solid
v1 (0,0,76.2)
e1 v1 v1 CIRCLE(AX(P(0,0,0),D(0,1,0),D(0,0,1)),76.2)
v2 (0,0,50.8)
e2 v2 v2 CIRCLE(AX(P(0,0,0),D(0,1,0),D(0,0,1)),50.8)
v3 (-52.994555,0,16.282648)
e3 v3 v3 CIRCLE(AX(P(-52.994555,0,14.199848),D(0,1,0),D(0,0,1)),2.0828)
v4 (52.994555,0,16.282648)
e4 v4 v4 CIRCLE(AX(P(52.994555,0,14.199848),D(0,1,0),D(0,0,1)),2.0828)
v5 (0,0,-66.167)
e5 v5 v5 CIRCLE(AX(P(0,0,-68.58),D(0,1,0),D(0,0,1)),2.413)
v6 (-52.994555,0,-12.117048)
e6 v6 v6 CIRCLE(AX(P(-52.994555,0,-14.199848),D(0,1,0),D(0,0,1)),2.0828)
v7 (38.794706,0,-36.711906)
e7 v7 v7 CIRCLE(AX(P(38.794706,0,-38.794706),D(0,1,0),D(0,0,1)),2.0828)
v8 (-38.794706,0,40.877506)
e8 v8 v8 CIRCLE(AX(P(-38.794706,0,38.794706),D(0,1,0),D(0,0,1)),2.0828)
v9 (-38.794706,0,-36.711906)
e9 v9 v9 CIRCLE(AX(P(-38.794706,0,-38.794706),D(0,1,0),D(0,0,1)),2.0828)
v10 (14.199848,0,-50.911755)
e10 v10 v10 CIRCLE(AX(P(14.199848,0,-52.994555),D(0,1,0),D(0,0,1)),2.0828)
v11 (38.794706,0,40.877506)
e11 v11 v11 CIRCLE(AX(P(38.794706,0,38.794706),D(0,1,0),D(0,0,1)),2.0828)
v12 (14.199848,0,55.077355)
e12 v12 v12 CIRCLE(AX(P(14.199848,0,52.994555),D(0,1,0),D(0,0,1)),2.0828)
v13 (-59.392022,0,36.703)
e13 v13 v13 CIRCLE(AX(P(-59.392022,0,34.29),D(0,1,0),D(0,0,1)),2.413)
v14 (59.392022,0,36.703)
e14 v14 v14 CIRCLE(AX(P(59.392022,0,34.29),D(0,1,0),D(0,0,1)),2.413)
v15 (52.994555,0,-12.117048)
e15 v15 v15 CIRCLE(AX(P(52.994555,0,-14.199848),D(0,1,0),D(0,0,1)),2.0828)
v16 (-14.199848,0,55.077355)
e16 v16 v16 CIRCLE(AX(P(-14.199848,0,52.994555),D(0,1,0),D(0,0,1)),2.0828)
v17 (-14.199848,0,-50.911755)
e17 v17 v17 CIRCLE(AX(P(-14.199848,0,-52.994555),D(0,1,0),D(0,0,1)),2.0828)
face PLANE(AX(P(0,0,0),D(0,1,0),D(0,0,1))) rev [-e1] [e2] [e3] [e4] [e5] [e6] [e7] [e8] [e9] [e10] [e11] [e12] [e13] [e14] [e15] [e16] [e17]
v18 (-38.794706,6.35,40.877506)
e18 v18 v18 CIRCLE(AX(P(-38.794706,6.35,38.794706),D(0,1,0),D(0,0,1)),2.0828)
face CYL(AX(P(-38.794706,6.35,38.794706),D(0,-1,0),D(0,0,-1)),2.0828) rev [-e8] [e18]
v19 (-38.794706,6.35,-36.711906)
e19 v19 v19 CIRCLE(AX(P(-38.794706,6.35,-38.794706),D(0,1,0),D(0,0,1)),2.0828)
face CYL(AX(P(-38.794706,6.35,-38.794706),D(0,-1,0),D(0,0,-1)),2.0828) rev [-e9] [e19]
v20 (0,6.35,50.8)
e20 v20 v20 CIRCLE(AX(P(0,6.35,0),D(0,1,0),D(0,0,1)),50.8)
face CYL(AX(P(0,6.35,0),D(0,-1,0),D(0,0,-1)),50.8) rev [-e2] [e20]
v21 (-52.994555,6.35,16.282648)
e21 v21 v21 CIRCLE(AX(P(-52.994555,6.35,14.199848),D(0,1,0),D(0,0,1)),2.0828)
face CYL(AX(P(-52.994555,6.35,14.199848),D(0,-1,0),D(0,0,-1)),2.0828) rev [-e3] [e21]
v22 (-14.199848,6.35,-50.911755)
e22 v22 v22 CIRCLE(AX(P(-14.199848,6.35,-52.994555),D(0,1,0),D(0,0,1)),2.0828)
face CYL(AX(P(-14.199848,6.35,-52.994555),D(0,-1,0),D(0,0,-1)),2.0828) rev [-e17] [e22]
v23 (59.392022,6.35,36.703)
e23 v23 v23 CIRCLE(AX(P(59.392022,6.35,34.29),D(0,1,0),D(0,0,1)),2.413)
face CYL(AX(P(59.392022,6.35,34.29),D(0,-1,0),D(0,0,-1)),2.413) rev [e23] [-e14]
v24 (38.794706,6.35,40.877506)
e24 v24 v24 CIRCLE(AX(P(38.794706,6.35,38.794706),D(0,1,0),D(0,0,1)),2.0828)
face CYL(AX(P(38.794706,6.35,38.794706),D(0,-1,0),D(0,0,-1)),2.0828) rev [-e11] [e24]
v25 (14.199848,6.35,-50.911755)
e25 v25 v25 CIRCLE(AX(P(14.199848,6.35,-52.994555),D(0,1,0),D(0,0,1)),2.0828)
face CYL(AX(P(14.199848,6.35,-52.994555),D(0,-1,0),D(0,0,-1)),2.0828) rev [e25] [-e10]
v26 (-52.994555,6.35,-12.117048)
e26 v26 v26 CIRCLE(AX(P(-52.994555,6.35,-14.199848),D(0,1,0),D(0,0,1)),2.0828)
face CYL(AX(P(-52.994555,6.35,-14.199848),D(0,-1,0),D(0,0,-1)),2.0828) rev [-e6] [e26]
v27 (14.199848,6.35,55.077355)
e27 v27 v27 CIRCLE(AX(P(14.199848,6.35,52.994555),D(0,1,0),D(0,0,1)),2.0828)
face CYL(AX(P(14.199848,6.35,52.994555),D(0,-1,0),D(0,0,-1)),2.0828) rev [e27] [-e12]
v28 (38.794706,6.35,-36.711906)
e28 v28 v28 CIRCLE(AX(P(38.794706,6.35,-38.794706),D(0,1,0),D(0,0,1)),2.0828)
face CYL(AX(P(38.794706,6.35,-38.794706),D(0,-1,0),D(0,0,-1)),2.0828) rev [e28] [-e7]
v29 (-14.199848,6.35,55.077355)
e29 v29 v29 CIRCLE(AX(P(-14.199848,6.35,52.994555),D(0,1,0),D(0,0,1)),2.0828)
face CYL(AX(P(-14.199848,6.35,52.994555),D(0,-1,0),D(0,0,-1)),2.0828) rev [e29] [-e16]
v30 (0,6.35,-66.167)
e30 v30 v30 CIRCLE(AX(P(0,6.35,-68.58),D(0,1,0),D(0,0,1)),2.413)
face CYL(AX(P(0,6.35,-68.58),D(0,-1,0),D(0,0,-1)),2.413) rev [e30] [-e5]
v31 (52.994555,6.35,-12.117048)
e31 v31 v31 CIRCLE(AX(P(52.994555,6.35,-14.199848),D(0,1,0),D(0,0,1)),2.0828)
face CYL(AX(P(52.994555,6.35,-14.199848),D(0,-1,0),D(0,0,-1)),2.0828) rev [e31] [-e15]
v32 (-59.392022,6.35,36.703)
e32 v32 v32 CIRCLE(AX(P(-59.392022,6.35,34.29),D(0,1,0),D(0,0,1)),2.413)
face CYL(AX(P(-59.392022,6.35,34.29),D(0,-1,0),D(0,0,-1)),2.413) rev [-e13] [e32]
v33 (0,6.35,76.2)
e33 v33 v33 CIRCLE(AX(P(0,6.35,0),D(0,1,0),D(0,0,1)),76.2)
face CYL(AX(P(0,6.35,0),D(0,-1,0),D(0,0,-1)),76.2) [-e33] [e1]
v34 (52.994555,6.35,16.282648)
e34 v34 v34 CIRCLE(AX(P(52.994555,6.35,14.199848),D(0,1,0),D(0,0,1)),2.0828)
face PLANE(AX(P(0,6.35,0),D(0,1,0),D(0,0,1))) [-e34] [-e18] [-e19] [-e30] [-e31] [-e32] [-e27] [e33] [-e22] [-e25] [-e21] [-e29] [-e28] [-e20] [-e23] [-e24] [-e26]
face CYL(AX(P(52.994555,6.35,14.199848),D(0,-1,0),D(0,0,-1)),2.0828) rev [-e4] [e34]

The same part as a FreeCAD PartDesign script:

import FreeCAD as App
import Part
import Sketcher
Q = App.Units.Quantity

doc = App.newDocument("Part")
body = doc.addObject("PartDesign::Body", "Body")

sketch1 = doc.addObject("Sketcher::SketchObject", "Sketch")
body.addObject(sketch1)
sketch1.AttachmentSupport = (doc.XZ_Plane, [""])
sketch1.MapMode = "FlatFace"
sketch1.addGeometry(Part.Circle(App.Vector(0, 0, 0), App.Vector(0, 0, 1), 76.2), False)
sketch1.addGeometry(Part.Circle(App.Vector(-53, -14.2, 0), App.Vector(0, 0, 1), 2.1), False)
sketch1.addGeometry(Part.Circle(App.Vector(-38.8, -38.8, 0), App.Vector(0, 0, 1), 2.1), False)
sketch1.addGeometry(Part.Circle(App.Vector(0, -68.6, 0), App.Vector(0, 0, 1), 2.4), False)
sketch1.addGeometry(Part.Circle(App.Vector(-14.2, -53, 0), App.Vector(0, 0, 1), 2.1), False)
sketch1.addGeometry(Part.Circle(App.Vector(-53, 14.2, 0), App.Vector(0, 0, 1), 2.1), False)
sketch1.addGeometry(Part.Circle(App.Vector(-59.4, 34.3, 0), App.Vector(0, 0, 1), 2.4), False)
sketch1.addGeometry(Part.Circle(App.Vector(-38.8, 38.8, 0), App.Vector(0, 0, 1), 2.1), False)
sketch1.addGeometry(Part.Circle(App.Vector(0, 0, 0), App.Vector(0, 0, 1), 50.8), False)
sketch1.addGeometry(Part.Circle(App.Vector(-14.2, 53, 0), App.Vector(0, 0, 1), 2.1), False)
sketch1.addGeometry(Part.Circle(App.Vector(14.2, -53, 0), App.Vector(0, 0, 1), 2.1), False)
sketch1.addGeometry(Part.Circle(App.Vector(38.8, -38.8, 0), App.Vector(0, 0, 1), 2.1), False)
sketch1.addGeometry(Part.Circle(App.Vector(53, -14.2, 0), App.Vector(0, 0, 1), 2.1), False)
sketch1.addGeometry(Part.Circle(App.Vector(14.2, 53, 0), App.Vector(0, 0, 1), 2.1), False)
sketch1.addGeometry(Part.Circle(App.Vector(53, 14.2, 0), App.Vector(0, 0, 1), 2.1), False)
sketch1.addGeometry(Part.Circle(App.Vector(38.8, 38.8, 0), App.Vector(0, 0, 1), 2.1), False)
sketch1.addGeometry(Part.Circle(App.Vector(59.4, 34.3, 0), App.Vector(0, 0, 1), 2.4), False)
sketch1.addConstraint(Sketcher.Constraint("Coincident", 0, 3, -1, 1))
sketch1.addConstraint(Sketcher.Constraint("Coincident", 8, 3, -1, 1))
sketch1.addConstraint(Sketcher.Constraint("Equal", 1, 2))
sketch1.addConstraint(Sketcher.Constraint("Equal", 2, 4))
sketch1.addConstraint(Sketcher.Constraint("Equal", 4, 5))
sketch1.addConstraint(Sketcher.Constraint("Equal", 3, 6))
sketch1.addConstraint(Sketcher.Constraint("Equal", 5, 7))
sketch1.addConstraint(Sketcher.Constraint("Equal", 7, 9))
sketch1.addConstraint(Sketcher.Constraint("Equal", 9, 10))
sketch1.addConstraint(Sketcher.Constraint("Equal", 10, 11))
sketch1.addConstraint(Sketcher.Constraint("Equal", 11, 12))
sketch1.addConstraint(Sketcher.Constraint("Equal", 12, 13))
sketch1.addConstraint(Sketcher.Constraint("Equal", 13, 14))
sketch1.addConstraint(Sketcher.Constraint("Equal", 14, 15))
sketch1.addConstraint(Sketcher.Constraint("Equal", 6, 16))
sketch1.addConstraint(Sketcher.Constraint("Symmetric", 9, 3, 10, 3, -1, 1))
sketch1.addConstraint(Sketcher.Constraint("Symmetric", 7, 3, 11, 3, -1, 1))
sketch1.addConstraint(Sketcher.Constraint("Symmetric", 5, 3, 12, 3, -1, 1))
sketch1.addConstraint(Sketcher.Constraint("Symmetric", 4, 3, 13, 3, -1, 1))
sketch1.addConstraint(Sketcher.Constraint("Symmetric", 1, 3, 14, 3, -1, 1))
sketch1.addConstraint(Sketcher.Constraint("Symmetric", 2, 3, 15, 3, -1, 1))
sketch1.addConstraint(Sketcher.Constraint("Symmetric", 4, 3, 10, 3, -2))
sketch1.addConstraint(Sketcher.Constraint("Symmetric", 2, 3, 11, 3, -2))
sketch1.addConstraint(Sketcher.Constraint("Symmetric", 1, 3, 12, 3, -2))
sketch1.addConstraint(Sketcher.Constraint("Symmetric", 6, 3, 16, 3, -2))
sketch1.addConstraint(Sketcher.Constraint("PointOnObject", 3, 3, -2))
sketch1.addConstraint(Sketcher.Constraint("Diameter", 0, Q("6 in")))
sketch1.addConstraint(Sketcher.Constraint("Diameter", 8, Q("4 in")))
sketch1.addConstraint(Sketcher.Constraint("Diameter", 3, Q("0.19 in")))
sketch1.addConstraint(Sketcher.Constraint("Diameter", 1, Q("0.164 in")))
sketch1.addConstraint(Sketcher.Constraint("DistanceY", 3, 3, -1, 1, Q("2.7 in")))
sketch1.addConstraint(Sketcher.Constraint("DistanceY", -1, 1, 6, 3, Q("1.35 in")))
sketch1.addConstraint(Sketcher.Constraint("DistanceY", 1, 3, -1, 1, 14.199848))
sketch1.addConstraint(Sketcher.Constraint("DistanceX", 4, 3, -1, 1, 14.199848))
sketch1.addConstraint(Sketcher.Constraint("DistanceX", 1, 3, 2, 3, 14.199848))
sketch1.addConstraint(Sketcher.Constraint("DistanceY", 2, 3, 1, 3, 24.594858))
sketch1.addConstraint(Sketcher.Constraint("DistanceX", 2, 3, 4, 3, 24.594858))
sketch1.addConstraint(Sketcher.Constraint("DistanceY", 4, 3, 2, 3, 14.199848))
sketch1.addConstraint(Sketcher.Constraint("DistanceX", 6, 3, 13, 3, 73.59187))
pad1 = doc.addObject("PartDesign::Pad", "Pad")
body.addObject(pad1)
pad1.Profile = sketch1
pad1.Length = Q("0.25 in")
pad1.Reversed = True

doc.recompute()
